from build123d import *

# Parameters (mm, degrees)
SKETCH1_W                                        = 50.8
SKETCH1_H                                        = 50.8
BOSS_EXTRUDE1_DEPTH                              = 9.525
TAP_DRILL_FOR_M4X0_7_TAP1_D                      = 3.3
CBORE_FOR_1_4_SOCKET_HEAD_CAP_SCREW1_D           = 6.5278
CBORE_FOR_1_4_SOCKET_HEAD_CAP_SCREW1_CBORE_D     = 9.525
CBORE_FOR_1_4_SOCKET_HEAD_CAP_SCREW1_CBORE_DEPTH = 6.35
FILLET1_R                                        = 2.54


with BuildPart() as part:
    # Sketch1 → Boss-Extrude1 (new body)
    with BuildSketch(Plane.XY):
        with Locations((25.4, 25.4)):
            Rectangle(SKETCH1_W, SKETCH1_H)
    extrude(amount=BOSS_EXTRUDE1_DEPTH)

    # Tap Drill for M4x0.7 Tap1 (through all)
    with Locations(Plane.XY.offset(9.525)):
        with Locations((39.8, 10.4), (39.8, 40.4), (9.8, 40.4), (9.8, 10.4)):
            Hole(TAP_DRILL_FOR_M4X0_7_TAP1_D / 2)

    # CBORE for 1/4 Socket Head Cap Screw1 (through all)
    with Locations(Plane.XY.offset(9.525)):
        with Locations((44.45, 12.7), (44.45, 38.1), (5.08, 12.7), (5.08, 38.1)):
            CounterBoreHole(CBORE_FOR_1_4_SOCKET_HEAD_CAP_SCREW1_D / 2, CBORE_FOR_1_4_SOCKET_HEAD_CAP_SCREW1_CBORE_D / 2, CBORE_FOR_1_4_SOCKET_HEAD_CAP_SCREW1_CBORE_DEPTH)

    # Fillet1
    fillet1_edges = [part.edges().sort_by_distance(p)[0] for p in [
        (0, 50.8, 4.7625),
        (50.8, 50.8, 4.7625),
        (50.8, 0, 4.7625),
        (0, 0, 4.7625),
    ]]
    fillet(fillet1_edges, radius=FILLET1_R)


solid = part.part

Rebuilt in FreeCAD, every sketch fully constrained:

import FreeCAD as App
import Part
import Sketcher
from FreeCAD import Vector
Q = App.Units.Quantity


def edges_at(feature, points):
    """Names of the edges that pass closest to the given points."""
    edges = feature.Shape.Edges
    near = lambda p: min(range(len(edges)), key=lambda i: edges[i].distToShape(Part.Vertex(*p))[0])
    return sorted({f"Edge{near(p) + 1}" for p in points})


def add_polygon(sketch, points):
    """Adds a closed chain of lines whose ends are joined by coincident constraints."""
    first, n = sketch.GeometryCount, len(points)
    for a, b in zip(points, points[1:] + points[:1]):
        sketch.addGeometry(Part.LineSegment(App.Vector(*a, 0), App.Vector(*b, 0)), False)
    for i in range(n):
        sketch.addConstraint(Sketcher.Constraint("Coincident", first + i, 2, first + (i + 1) % n, 1))

doc = App.newDocument("Part")
body = doc.addObject("PartDesign::Body", "Body")

# Sketch on XY plane
sketch1 = body.newObject("Sketcher::SketchObject", "Sketch")
sketch1.AttachmentSupport = (doc.getObject("XY_Plane"), [""])
sketch1.MapMode = "FlatFace"
add_polygon(sketch1, [(0, 51), (0, 0), (51, 0), (51, 51)])  # lines 0-3
sketch1.addConstraint([
    Sketcher.Constraint("Vertical", 0),
    Sketcher.Constraint("Horizontal", 1),
    Sketcher.Constraint("Vertical", 2),
    Sketcher.Constraint("Horizontal", 3),
    Sketcher.Constraint("Coincident", 0, 2, -1, 1),
    Sketcher.Constraint("Equal", 3, 0),
    Sketcher.Constraint("DistanceX", 1, 1, 1, 2, Q("2 in")),
])
pad1 = body.newObject("PartDesign::Pad", "Pad")
pad1.Profile = sketch1
pad1.Length = Q("0.375 in")

# Sketch on XY plane
sketch2 = body.newObject("Sketcher::SketchObject", "Sketch001")
sketch2.AttachmentSupport = (doc.getObject("XY_Plane"), [""])
sketch2.MapMode = "FlatFace"
sketch2.AttachmentOffset = App.Placement(Vector(0, 0, 0.375 * 25.4), App.Rotation())
sketch2.addGeometry([
    Part.Circle(Vector(39.8, 10.4, 0), Vector(0, 0, 1), 1.6),
    Part.Circle(Vector(39.8, 40.4, 0), Vector(0, 0, 1), 1.6),
    Part.Circle(Vector(9.8, 40.4, 0), Vector(0, 0, 1), 1.6),
    Part.Circle(Vector(9.8, 10.4, 0), Vector(0, 0, 1), 1.6),
], False)
sketch2.addConstraint([
    Sketcher.Constraint("Equal", 0, 1),
    Sketcher.Constraint("Equal", 1, 2),
    Sketcher.Constraint("Equal", 2, 3),
    Sketcher.Constraint("Horizontal", 1, 3, 2, 3),
    Sketcher.Constraint("Horizontal", 0, 3, 3, 3),
    Sketcher.Constraint("Vertical", 0, 3, 1, 3),
    Sketcher.Constraint("Vertical", 2, 3, 3, 3),
    Sketcher.Constraint("Diameter", 0, Q("3.3 mm")),
    Sketcher.Constraint("DistanceX", -1, 1, 0, 3, Q("39.8 mm")),
    Sketcher.Constraint("DistanceY", -1, 1, 0, 3, Q("10.4 mm")),
    Sketcher.Constraint("DistanceY", -1, 1, 1, 3, Q("40.4 mm")),
    Sketcher.Constraint("DistanceX", -1, 1, 2, 3, Q("9.8 mm")),
])
doc.recompute()
hole = body.newObject("PartDesign::Hole", "Hole")
hole.Profile = sketch2
hole.ThreadType = "None"
hole.Diameter = 3.3
hole.DepthType = "ThroughAll"

# Sketch on XY plane
sketch3 = body.newObject("Sketcher::SketchObject", "Sketch002")
sketch3.AttachmentSupport = (doc.getObject("XY_Plane"), [""])
sketch3.MapMode = "FlatFace"
sketch3.AttachmentOffset = App.Placement(Vector(0, 0, 0.375 * 25.4), App.Rotation())
sketch3.addGeometry([
    Part.Circle(Vector(44.5, 12.7, 0), Vector(0, 0, 1), 3.3),
    Part.Circle(Vector(44.5, 38.1, 0), Vector(0, 0, 1), 3.3),
    Part.Circle(Vector(5.1, 12.7, 0), Vector(0, 0, 1), 3.3),
    Part.Circle(Vector(5.1, 38.1, 0), Vector(0, 0, 1), 3.3),
], False)
sketch3.addConstraint([
    Sketcher.Constraint("Equal", 0, 1),
    Sketcher.Constraint("Equal", 1, 2),
    Sketcher.Constraint("Equal", 2, 3),
    Sketcher.Constraint("Horizontal", 0, 3, 2, 3),
    Sketcher.Constraint("Horizontal", 1, 3, 3, 3),
    Sketcher.Constraint("Vertical", 0, 3, 1, 3),
    Sketcher.Constraint("Vertical", 2, 3, 3, 3),
    Sketcher.Constraint("Diameter", 0, Q("0.257 in")),
    Sketcher.Constraint("DistanceY", 0, 3, 1, 3, Q("1 in")),
    Sketcher.Constraint("DistanceY", -1, 1, 0, 3, Q("0.5 in")),
    Sketcher.Constraint("DistanceX", -1, 1, 2, 3, Q("0.2 in")),
    Sketcher.Constraint("DistanceX", -1, 1, 0, 3, Q("1.75 in")),
])
doc.recompute()
hole2 = body.newObject("PartDesign::Hole", "Hole001")
hole2.Profile = sketch3
hole2.ThreadType = "None"
hole2.Diameter = Q("0.257 in")
hole2.DepthType = "ThroughAll"
hole2.HoleCutType = "Counterbore"
hole2.HoleCutDiameter = Q("0.375 in")
hole2.HoleCutDepth = Q("0.25 in")
doc.recompute()

fillet = body.newObject("PartDesign::Fillet", "Fillet")
fillet.Base = (hole2, edges_at(hole2, [
    (0, 50.8, 4.763),
    (50.8, 50.8, 4.763),
    (50.8, 0, 4.763),
    (0, 0, 4.763),
]))
fillet.Radius = Q("0.1 in")

doc.recompute()
